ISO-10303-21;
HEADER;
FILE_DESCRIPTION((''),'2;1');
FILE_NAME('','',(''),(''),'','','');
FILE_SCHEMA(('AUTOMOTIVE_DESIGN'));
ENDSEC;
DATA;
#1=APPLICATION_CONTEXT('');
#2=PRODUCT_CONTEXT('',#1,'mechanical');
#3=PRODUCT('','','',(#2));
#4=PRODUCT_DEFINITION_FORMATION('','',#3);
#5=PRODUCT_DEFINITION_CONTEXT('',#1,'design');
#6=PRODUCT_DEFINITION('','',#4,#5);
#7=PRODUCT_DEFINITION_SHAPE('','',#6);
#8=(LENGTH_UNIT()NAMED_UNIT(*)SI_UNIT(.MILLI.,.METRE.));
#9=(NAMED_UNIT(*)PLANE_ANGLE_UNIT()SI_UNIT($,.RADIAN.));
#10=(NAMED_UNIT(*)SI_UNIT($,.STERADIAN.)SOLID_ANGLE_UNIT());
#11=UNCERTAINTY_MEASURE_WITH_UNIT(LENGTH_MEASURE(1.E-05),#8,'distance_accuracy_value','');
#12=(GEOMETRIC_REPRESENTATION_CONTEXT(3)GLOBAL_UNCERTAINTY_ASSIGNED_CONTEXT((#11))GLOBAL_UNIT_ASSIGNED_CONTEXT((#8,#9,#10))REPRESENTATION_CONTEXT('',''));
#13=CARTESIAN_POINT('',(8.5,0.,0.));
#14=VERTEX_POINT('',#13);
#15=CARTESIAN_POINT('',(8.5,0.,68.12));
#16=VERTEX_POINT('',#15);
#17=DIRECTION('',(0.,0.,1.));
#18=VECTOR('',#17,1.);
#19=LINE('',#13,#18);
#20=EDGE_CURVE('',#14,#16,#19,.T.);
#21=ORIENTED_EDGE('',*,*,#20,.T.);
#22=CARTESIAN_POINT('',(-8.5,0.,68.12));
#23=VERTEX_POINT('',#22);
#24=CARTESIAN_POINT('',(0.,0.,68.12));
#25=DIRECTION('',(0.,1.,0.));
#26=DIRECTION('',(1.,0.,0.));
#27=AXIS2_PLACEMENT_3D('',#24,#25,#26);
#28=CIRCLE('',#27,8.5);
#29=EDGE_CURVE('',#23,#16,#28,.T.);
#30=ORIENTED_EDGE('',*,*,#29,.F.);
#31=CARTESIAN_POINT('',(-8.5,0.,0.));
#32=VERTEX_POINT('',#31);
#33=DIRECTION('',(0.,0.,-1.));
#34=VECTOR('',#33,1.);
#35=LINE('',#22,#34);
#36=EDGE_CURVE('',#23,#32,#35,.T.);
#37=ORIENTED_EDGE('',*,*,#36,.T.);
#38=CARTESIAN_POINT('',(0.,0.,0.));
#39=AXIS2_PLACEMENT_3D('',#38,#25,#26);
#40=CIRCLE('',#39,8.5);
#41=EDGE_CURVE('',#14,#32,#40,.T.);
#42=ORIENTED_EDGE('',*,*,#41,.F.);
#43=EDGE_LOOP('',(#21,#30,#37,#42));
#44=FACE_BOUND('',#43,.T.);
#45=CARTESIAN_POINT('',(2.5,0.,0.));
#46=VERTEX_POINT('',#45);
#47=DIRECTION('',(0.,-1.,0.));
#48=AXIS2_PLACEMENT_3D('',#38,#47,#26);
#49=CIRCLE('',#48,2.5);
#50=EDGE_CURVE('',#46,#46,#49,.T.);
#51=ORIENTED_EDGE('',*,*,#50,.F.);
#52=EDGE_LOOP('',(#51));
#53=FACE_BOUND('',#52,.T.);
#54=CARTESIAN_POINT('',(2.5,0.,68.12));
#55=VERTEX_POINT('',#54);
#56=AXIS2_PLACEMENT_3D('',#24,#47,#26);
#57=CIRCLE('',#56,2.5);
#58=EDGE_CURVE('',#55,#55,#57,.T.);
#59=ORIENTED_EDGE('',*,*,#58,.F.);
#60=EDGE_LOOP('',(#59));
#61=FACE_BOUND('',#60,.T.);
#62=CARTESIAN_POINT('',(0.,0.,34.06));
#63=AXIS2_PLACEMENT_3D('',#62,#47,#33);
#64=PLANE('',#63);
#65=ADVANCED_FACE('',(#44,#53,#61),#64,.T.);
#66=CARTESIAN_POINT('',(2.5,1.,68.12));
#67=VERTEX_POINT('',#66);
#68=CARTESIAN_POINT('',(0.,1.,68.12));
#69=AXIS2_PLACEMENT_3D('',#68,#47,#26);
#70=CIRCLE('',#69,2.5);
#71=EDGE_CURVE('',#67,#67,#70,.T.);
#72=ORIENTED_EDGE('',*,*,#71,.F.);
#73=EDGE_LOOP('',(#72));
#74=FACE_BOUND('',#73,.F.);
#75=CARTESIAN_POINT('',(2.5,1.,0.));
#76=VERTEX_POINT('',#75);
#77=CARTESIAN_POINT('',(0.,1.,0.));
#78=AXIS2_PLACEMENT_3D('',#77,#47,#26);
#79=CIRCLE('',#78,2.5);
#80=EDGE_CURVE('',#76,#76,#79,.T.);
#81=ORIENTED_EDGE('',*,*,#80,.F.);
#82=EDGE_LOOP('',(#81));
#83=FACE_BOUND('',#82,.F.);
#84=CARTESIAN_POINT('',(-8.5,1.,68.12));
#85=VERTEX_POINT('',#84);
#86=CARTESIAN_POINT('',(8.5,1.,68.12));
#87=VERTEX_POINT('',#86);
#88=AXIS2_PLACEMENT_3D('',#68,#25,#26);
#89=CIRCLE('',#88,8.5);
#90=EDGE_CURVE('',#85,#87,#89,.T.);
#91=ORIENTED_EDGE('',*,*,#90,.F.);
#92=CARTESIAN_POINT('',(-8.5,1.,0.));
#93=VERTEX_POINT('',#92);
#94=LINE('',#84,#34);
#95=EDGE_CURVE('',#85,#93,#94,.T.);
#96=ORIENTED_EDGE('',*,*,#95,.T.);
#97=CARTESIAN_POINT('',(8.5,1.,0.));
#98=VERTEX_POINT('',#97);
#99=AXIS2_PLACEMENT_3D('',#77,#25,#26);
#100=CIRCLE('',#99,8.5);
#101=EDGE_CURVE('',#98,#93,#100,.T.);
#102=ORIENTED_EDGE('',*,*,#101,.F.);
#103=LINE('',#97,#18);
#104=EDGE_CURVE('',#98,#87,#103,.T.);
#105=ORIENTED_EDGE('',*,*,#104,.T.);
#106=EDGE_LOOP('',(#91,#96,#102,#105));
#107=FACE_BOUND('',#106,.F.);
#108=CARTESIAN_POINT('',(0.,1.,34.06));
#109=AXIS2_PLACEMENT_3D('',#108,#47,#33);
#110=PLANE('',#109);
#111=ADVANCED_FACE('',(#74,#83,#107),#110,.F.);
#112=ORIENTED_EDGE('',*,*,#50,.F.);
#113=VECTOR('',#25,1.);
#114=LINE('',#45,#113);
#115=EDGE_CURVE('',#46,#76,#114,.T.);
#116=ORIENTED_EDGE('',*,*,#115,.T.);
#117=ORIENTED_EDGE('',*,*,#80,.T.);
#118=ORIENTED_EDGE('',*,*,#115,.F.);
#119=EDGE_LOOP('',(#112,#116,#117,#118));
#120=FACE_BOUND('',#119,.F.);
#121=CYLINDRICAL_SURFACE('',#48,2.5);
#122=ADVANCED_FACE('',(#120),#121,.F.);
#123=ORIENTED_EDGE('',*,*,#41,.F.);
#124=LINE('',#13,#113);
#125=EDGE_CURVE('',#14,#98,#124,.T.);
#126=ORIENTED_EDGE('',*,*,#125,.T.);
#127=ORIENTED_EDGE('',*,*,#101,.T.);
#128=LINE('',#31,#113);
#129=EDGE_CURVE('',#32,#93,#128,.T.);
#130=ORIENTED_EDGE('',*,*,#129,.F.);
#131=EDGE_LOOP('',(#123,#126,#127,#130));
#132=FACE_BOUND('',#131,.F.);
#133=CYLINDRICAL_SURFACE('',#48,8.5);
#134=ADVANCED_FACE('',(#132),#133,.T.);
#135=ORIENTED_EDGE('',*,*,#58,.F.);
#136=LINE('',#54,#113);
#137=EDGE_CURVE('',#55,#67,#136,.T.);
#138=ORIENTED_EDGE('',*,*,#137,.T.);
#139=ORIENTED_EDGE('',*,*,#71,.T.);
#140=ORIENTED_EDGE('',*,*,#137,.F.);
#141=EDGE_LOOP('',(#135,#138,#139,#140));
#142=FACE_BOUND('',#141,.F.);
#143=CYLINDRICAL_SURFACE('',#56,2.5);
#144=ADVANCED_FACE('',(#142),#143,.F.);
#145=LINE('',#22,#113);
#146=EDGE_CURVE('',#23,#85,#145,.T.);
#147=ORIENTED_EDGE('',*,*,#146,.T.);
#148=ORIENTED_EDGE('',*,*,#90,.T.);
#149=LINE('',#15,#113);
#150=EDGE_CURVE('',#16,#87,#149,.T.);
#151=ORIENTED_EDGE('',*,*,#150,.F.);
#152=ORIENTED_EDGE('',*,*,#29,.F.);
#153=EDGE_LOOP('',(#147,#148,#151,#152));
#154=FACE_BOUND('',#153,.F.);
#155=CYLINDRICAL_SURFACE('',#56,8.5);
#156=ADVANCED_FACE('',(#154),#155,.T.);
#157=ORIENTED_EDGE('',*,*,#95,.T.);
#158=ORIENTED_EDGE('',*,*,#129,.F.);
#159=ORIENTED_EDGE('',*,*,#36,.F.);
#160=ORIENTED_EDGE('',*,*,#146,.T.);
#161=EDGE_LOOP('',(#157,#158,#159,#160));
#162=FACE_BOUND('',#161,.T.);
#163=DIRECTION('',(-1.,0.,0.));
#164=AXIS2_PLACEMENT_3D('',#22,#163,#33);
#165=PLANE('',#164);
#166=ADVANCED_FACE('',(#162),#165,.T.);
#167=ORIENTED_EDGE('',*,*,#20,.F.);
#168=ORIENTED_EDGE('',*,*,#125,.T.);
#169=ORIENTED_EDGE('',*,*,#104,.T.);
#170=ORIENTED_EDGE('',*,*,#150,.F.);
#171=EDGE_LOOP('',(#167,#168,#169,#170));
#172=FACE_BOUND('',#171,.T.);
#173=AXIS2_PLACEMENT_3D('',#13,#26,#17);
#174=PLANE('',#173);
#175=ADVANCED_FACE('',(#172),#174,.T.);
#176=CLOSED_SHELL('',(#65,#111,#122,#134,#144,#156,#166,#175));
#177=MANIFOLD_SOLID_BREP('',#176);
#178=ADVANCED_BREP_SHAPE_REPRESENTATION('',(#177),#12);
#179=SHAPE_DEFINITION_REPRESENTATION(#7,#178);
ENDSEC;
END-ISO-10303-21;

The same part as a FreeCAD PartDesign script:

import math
import FreeCAD as App
import Part
import Sketcher

V = App.Vector
Q = App.Units.Quantity

doc = App.newDocument("Part")
body = doc.addObject("PartDesign::Body", "Body")

# Sketch on XZ plane
sketch1 = body.newObject("Sketcher::SketchObject", "Sketch")
sketch1.AttachmentSupport = (doc.getObject("XZ_Plane"), [""])
sketch1.MapMode = "FlatFace"
sketch1.addGeometry([
    Part.ArcOfCircle(Part.Circle(V(0, 0, 0), V(0, 0, 1), 8), math.radians(180), math.radians(360)),
    Part.LineSegment(V(8, 0, 0), V(8, 68, 0)),
    Part.ArcOfCircle(Part.Circle(V(0, 68, 0), V(0, 0, 1), 8), math.radians(0), math.radians(180)),
    Part.LineSegment(V(-8, 68, 0), V(-8, 0, 0)),
], False)
sketch1.addConstraint([
    Sketcher.Constraint("Tangent", 0, 2, 1, 1),
    Sketcher.Constraint("Tangent", 1, 2, 2, 1),
    Sketcher.Constraint("Tangent", 2, 2, 3, 1),
    Sketcher.Constraint("Tangent", 3, 2, 0, 1),
    Sketcher.Constraint("Vertical", 1),
    Sketcher.Constraint("Vertical", 3),
    Sketcher.Constraint("Coincident", 0, 3, -1, 1),
    Sketcher.Constraint("Radius", 0, Q("8.5 mm")),
    Sketcher.Constraint("DistanceY", 1, 1, 1, 2, Q("68.12 mm")),
])
pad1 = body.newObject("PartDesign::Pad", "Pad")
pad1.Profile = sketch1
pad1.Length = 1
pad1.Reversed = True

# Sketch on XZ plane
sketch2 = body.newObject("Sketcher::SketchObject", "Sketch001")
sketch2.AttachmentSupport = (doc.getObject("XZ_Plane"), [""])
sketch2.MapMode = "FlatFace"
sketch2.addGeometry(Part.Circle(V(0, 68.1, 0), V(0, 0, 1), 2.5), False)
sketch2.addConstraint([
    Sketcher.Constraint("PointOnObject", 0, 3, -2),
    Sketcher.Constraint("Diameter", 0, Q("5 mm")),
    Sketcher.Constraint("DistanceY", -1, 1, 0, 3, Q("68.12 mm")),
])
pocket1 = body.newObject("PartDesign::Pocket", "Pocket")
pocket1.Profile = sketch2
pocket1.Length = 5

# Sketch on XZ plane
sketch3 = body.newObject("Sketcher::SketchObject", "Sketch002")
sketch3.AttachmentSupport = (doc.getObject("XZ_Plane"), [""])
sketch3.MapMode = "FlatFace"
sketch3.addGeometry(Part.Circle(V(0, 0, 0), V(0, 0, 1), 2.5), False)
sketch3.addConstraint([
    Sketcher.Constraint("Coincident", 0, 3, -1, 1),
    Sketcher.Constraint("Diameter", 0, Q("5 mm")),
])
pocket2 = body.newObject("PartDesign::Pocket", "Pocket001")
pocket2.Profile = sketch3
pocket2.Length = 5

doc.recompute()
